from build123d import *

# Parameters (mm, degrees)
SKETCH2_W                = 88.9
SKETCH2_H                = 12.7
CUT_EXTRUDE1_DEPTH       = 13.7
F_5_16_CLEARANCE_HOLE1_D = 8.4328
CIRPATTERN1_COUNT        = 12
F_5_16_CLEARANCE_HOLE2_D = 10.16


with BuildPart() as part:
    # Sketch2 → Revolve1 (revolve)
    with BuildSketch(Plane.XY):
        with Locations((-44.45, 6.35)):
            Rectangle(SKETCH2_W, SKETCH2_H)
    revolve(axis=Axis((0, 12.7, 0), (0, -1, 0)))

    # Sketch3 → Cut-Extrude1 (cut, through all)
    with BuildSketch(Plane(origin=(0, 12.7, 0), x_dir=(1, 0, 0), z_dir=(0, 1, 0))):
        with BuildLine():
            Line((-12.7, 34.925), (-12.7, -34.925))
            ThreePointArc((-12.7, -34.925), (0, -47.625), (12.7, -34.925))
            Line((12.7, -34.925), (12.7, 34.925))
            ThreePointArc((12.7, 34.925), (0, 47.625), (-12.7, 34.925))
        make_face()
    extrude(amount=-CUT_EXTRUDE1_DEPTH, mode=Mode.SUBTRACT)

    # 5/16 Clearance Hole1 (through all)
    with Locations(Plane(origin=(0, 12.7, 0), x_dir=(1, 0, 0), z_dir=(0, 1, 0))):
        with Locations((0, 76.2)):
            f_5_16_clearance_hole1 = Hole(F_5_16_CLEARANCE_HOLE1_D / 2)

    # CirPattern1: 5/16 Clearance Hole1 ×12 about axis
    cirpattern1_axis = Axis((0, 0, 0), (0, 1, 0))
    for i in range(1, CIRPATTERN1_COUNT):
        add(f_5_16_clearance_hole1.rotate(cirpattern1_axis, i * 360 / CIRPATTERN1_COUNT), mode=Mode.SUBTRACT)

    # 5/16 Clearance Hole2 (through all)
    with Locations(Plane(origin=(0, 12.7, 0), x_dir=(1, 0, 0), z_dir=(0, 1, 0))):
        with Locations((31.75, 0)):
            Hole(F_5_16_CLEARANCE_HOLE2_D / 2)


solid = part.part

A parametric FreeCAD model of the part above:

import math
import FreeCAD as App
import Part
import Sketcher
from FreeCAD import Vector
Q = App.Units.Quantity

doc = App.newDocument("Part")
body = doc.addObject("PartDesign::Body", "Body")

sketch1 = body.newObject("Sketcher::SketchObject", "Sketch")
sketch1.AttachmentSupport = (doc.getObject("XY_Plane"), [""])
sketch1.MapMode = "FlatFace"
sketch1.addGeometry(Part.LineSegment(Vector(-89, 13, 0), Vector(-89, 0, 0)), False)
sketch1.addGeometry(Part.LineSegment(Vector(-89, 0, 0), Vector(0, 0, 0)), False)
sketch1.addGeometry(Part.LineSegment(Vector(0, 0, 0), Vector(0, 13, 0)), False)
sketch1.addGeometry(Part.LineSegment(Vector(0, 13, 0), Vector(-89, 13, 0)), False)
sketch1.addConstraint(Sketcher.Constraint("Coincident", 0, 2, 1, 1))
sketch1.addConstraint(Sketcher.Constraint("Coincident", 1, 2, 2, 1))
sketch1.addConstraint(Sketcher.Constraint("Coincident", 2, 2, 3, 1))
sketch1.addConstraint(Sketcher.Constraint("Coincident", 3, 2, 0, 1))
sketch1.addConstraint(Sketcher.Constraint("Vertical", 0))
sketch1.addConstraint(Sketcher.Constraint("Horizontal", 1))
sketch1.addConstraint(Sketcher.Constraint("Vertical", 2))
sketch1.addConstraint(Sketcher.Constraint("Horizontal", 3))
sketch1.addConstraint(Sketcher.Constraint("Coincident", 1, 2, -1, 1))
sketch1.addConstraint(Sketcher.Constraint("DistanceX", 1, 1, 1, 2, Q("3.5 in")))
sketch1.addConstraint(Sketcher.Constraint("DistanceY", 0, 2, 0, 1, Q("0.5 in")))
revolution = body.newObject("PartDesign::Revolution", "Revolution")
revolution.Profile = sketch1
revolution.ReferenceAxis = (sketch1, ["V_Axis"])
revolution.Angle = 360

sketch2 = body.newObject("Sketcher::SketchObject", "Sketch001")
sketch2.AttachmentSupport = (doc.getObject("XZ_Plane"), [""])
sketch2.MapMode = "FlatFace"
sketch2.AttachmentOffset = App.Placement(Vector(0, 0, -0.5 * 25.4), App.Rotation())
sketch2.addGeometry(Part.LineSegment(Vector(-13, -35, 0), Vector(-13, 35, 0)), False)
sketch2.addGeometry(Part.ArcOfCircle(Part.Circle(Vector(0, 35, 0), Vector(0, 0, 1), 13), math.radians(0), math.radians(180)), False)
sketch2.addGeometry(Part.LineSegment(Vector(13, 35, 0), Vector(13, -35, 0)), False)
sketch2.addGeometry(Part.ArcOfCircle(Part.Circle(Vector(0, -35, 0), Vector(0, 0, 1), 13), math.radians(180), math.radians(360)), False)
sketch2.addConstraint(Sketcher.Constraint("Tangent", 0, 2, 1, 2))
sketch2.addConstraint(Sketcher.Constraint("Tangent", 1, 1, 2, 1))
sketch2.addConstraint(Sketcher.Constraint("Tangent", 2, 2, 3, 2))
sketch2.addConstraint(Sketcher.Constraint("Tangent", 3, 1, 0, 1))
sketch2.addConstraint(Sketcher.Constraint("Vertical", 0))
sketch2.addConstraint(Sketcher.Constraint("Vertical", 2))
sketch2.addConstraint(Sketcher.Constraint("Symmetric", 1, 3, 3, 3, -1, 1))
sketch2.addConstraint(Sketcher.Constraint("Radius", 1, Q("0.5 in")))
sketch2.addConstraint(Sketcher.Constraint("DistanceY", 0, 1, 0, 2, Q("2.75 in")))
pocket1 = body.newObject("PartDesign::Pocket", "Pocket")
pocket1.Profile = sketch2
pocket1.Type = "ThroughAll"
pocket1.Reversed = True

sketch3 = body.newObject("Sketcher::SketchObject", "Sketch002")
sketch3.AttachmentSupport = (doc.getObject("XZ_Plane"), [""])
sketch3.MapMode = "FlatFace"
sketch3.AttachmentOffset = App.Placement(Vector(0, 0, -0.5 * 25.4), App.Rotation())
sketch3.addGeometry(Part.Circle(Vector(0, -76.2, 0), Vector(0, 0, 1), 4.2), False)
sketch3.addConstraint(Sketcher.Constraint("PointOnObject", 0, 3, -2))
sketch3.addConstraint(Sketcher.Constraint("Diameter", 0, Q("0.332 in")))
sketch3.addConstraint(Sketcher.Constraint("DistanceY", 0, 3, -1, 1, Q("3 in")))
doc.recompute()
hole = body.newObject("PartDesign::Hole", "Hole")
hole.Profile = sketch3
hole.ThreadType = "None"
hole.Diameter = Q("0.332 in")
hole.DepthType = "ThroughAll"
hole.Reversed = True
doc.recompute()

polarpattern = body.newObject("PartDesign::PolarPattern", "PolarPattern")
polarpattern.Originals = [hole]
polarpattern.Axis = (doc.getObject("Y_Axis"), [""])
polarpattern.Angle = 360
polarpattern.Occurrences = 12
body.Tip = polarpattern

sketch4 = body.newObject("Sketcher::SketchObject", "Sketch003")
sketch4.AttachmentSupport = (doc.getObject("XZ_Plane"), [""])
sketch4.MapMode = "FlatFace"
sketch4.AttachmentOffset = App.Placement(Vector(0, 0, -0.5 * 25.4), App.Rotation())
sketch4.addGeometry(Part.Circle(Vector(32, 0, 0), Vector(0, 0, 1), 5), False)
sketch4.addConstraint(Sketcher.Constraint("PointOnObject", 0, 3, -1))
sketch4.addConstraint(Sketcher.Constraint("Diameter", 0, Q("0.4 in")))
sketch4.addConstraint(Sketcher.Constraint("DistanceX", -1, 1, 0, 3, Q("1.25 in")))
doc.recompute()
hole2 = body.newObject("PartDesign::Hole", "Hole001")
hole2.Profile = sketch4
hole2.ThreadType = "None"
hole2.Diameter = Q("0.4 in")
hole2.DepthType = "ThroughAll"
hole2.Reversed = True

doc.recompute()
